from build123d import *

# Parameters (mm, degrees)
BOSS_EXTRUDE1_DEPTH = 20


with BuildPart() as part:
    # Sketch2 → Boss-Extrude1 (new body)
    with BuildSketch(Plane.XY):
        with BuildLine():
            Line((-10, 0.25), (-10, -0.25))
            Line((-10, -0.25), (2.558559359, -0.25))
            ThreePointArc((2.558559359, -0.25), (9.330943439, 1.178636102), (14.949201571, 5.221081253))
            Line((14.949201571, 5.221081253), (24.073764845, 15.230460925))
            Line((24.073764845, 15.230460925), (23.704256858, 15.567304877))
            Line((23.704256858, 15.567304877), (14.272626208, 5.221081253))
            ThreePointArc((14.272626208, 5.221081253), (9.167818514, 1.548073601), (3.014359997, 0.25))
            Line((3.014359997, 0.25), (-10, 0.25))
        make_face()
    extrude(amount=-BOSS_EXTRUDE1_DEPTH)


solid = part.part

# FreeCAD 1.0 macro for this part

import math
import FreeCAD as App
import Part
import Sketcher
Q = App.Units.Quantity

doc = App.newDocument("Part")
params = doc.addObject("Spreadsheet::Sheet", "Params")
for row, (alias, value) in enumerate([
    ("sketch1_length", "14 mm"),
    ("sketch1_height", "0.5 mm"),
    ("sketch1_length2", "0.5 mm"),
    ("pad1_length", "20 mm"),
], start=1):
    params.set(f"A{row}", alias)
    params.set(f"B{row}", "=" + value)
    params.setAlias(f"B{row}", alias)

body = doc.addObject("PartDesign::Body", "Body")

# Sketch on XY plane
sketch1 = body.newObject("Sketcher::SketchObject", "Sketch")
sketch1.AttachmentSupport = (doc.getObject("XY_Plane"), [""])
sketch1.MapMode = "FlatFace"
sketch1.addGeometry([
    Part.LineSegment(App.Vector(-10, 0.25, 0), App.Vector(-10, -0.25, 0)),  # 0
    Part.LineSegment(App.Vector(-10, -0.25, 0), App.Vector(2.558559, -0.25, 0)),  # 1
    Part.ArcOfCircle(Part.Circle(App.Vector(2.558559, 16.516406, 0), App.Vector(0, 0, 1), 16.766406), math.radians(-90), math.radians(-42.352341)),  # 2
    Part.LineSegment(App.Vector(14.949202, 5.221081, 0), App.Vector(24.073765, 15.230461, 0)),  # 3
    Part.LineSegment(App.Vector(24.073765, 15.230461, 0), App.Vector(23.704257, 15.567305, 0)),  # 4
    Part.LineSegment(App.Vector(23.704257, 15.567305, 0), App.Vector(14.272626, 5.221081, 0)),  # 5
    Part.ArcOfCircle(Part.Circle(App.Vector(3.01436, 15.484131, 0), App.Vector(0, 0, 1), 15.234131), math.radians(-90), math.radians(-42.352341)),  # 6
    Part.LineSegment(App.Vector(3.01436, 0.25, 0), App.Vector(-10, 0.25, 0)),  # 7
], False)
sketch1.addConstraint([
    Sketcher.Constraint("Coincident", 0, 2, 1, 1),
    Sketcher.Constraint("Tangent", 1, 2, 2, 1),
    Sketcher.Constraint("Tangent", 2, 2, 3, 1),
    Sketcher.Constraint("Coincident", 3, 2, 4, 1),
    Sketcher.Constraint("Coincident", 4, 2, 5, 1),
    Sketcher.Constraint("Tangent", 5, 2, 6, 2),
    Sketcher.Constraint("Tangent", 6, 1, 7, 1),
    Sketcher.Constraint("Coincident", 7, 2, 0, 1),
    Sketcher.Constraint("Vertical", 0),
    Sketcher.Constraint("Horizontal", 1),
    Sketcher.Constraint("Horizontal", 7),
    Sketcher.Constraint("Perpendicular", 3, 4),
    Sketcher.Constraint("Perpendicular", 4, 5),
    Sketcher.Constraint("Horizontal", 2, 2, 5, 2),
    Sketcher.Constraint("Distance", 5, Q("14 mm")),
    Sketcher.Constraint("DistanceY", 0, 2, 0, 1, Q("0.5 mm")),
    Sketcher.Constraint("DistanceX", 0, 2, -1, 1, Q("10 mm")),
    Sketcher.Constraint("Distance", 4, Q("0.5 mm")),
    Sketcher.Constraint("DistanceY", 0, 2, -1, 1, Q("0.25 mm")),
    Sketcher.Constraint("Radius", 6, Q("15.234131 mm")),
    Sketcher.Constraint("Radius", 2, Q("16.766406 mm")),
    Sketcher.Constraint("DistanceX", 1, 1, 1, 2, Q("12.558559 mm")),
])
sketch1.setExpression("Constraints[14]", "Params.sketch1_length")
sketch1.setExpression("Constraints[15]", "Params.sketch1_height")
sketch1.setExpression("Constraints[17]", "Params.sketch1_length2")
pad1 = body.newObject("PartDesign::Pad", "Pad")
pad1.Profile = sketch1
pad1.setExpression("Length", "Params.pad1_length")
pad1.Reversed = True

doc.recompute()
